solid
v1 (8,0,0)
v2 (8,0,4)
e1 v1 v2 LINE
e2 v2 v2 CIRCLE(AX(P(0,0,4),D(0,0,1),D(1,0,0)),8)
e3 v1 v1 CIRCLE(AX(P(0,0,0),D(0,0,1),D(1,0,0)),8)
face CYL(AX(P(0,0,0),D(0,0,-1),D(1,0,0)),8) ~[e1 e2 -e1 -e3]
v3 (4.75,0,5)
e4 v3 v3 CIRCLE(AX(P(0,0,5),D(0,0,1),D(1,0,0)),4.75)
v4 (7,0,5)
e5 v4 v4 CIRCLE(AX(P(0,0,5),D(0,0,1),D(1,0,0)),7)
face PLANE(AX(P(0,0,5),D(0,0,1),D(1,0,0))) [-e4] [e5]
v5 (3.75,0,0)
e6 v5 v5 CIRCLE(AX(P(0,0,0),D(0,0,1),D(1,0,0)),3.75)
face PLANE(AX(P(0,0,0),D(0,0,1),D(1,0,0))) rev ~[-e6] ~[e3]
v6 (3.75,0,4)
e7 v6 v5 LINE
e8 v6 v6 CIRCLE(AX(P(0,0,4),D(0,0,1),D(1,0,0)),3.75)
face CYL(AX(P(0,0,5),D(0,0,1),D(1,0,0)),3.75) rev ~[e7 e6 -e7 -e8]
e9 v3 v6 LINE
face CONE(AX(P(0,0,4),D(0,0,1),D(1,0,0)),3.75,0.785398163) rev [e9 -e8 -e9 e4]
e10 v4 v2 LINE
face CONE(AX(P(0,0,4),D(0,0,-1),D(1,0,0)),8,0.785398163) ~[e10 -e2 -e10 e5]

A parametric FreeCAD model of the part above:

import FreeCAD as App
import Part
import Sketcher
Q = App.Units.Quantity


def edges_at(feature, points):
    """Names of the edges that pass closest to the given points."""
    edges = feature.Shape.Edges
    near = lambda p: min(range(len(edges)), key=lambda i: edges[i].distToShape(Part.Vertex(*p))[0])
    return sorted({f"Edge{near(p) + 1}" for p in points})

doc = App.newDocument("Part")
params = doc.addObject("Spreadsheet::Sheet", "Params")
for row, (alias, value) in enumerate([
    ("sketch1_diameter", "16 mm"),
    ("pad1_length", "5 mm"),
    ("sketch2_diameter", "7.5 mm"),
    ("pocket1_length", "5 mm"),
    ("chamfer_size", "1 mm"),
    ("chamfer2_size", "1 mm"),
], start=1):
    params.set(f"A{row}", alias)
    params.set(f"B{row}", "=" + value)
    params.setAlias(f"B{row}", alias)

body = doc.addObject("PartDesign::Body", "Body")

# Sketch on XY plane
sketch1 = body.newObject("Sketcher::SketchObject", "Sketch")
sketch1.AttachmentSupport = (doc.getObject("XY_Plane"), [""])
sketch1.MapMode = "FlatFace"
sketch1.addGeometry(Part.Circle(App.Vector(0, 0, 0), App.Vector(0, 0, 1), 8), False)
sketch1.addConstraint(Sketcher.Constraint("Coincident", 0, 3, -1, 1))
sketch1.addConstraint(Sketcher.Constraint("Diameter", 0, Q("16 mm")))
sketch1.setExpression("Constraints[1]", "Params.sketch1_diameter")
pad1 = body.newObject("PartDesign::Pad", "Pad")
pad1.Profile = sketch1
pad1.setExpression("Length", "Params.pad1_length")

# Sketch on XY plane
sketch2 = body.newObject("Sketcher::SketchObject", "Sketch001")
sketch2.AttachmentSupport = (doc.getObject("XY_Plane"), [""])
sketch2.MapMode = "FlatFace"
sketch2.AttachmentOffset = App.Placement(App.Vector(0, 0, 5), App.Rotation())
sketch2.addGeometry(Part.Circle(App.Vector(0, 0, 0), App.Vector(0, 0, 1), 3.8), False)
sketch2.addConstraint(Sketcher.Constraint("Coincident", 0, 3, -1, 1))
sketch2.addConstraint(Sketcher.Constraint("Diameter", 0, Q("7.5 mm")))
sketch2.setExpression("Constraints[1]", "Params.sketch2_diameter")
pocket1 = body.newObject("PartDesign::Pocket", "Pocket")
pocket1.Profile = sketch2
pocket1.setExpression("Length", "Params.pocket1_length")
doc.recompute()

chamfer = body.newObject("PartDesign::Chamfer", "Chamfer")
chamfer.Base = (pocket1, edges_at(pocket1, [(-3.75, 0, 5)]))
chamfer.setExpression("Size", "Params.chamfer_size")
doc.recompute()

chamfer2 = body.newObject("PartDesign::Chamfer", "Chamfer001")
chamfer2.Base = (chamfer, edges_at(chamfer, [(-8, 0, 5)]))
chamfer2.setExpression("Size", "Params.chamfer2_size")

doc.recompute()
